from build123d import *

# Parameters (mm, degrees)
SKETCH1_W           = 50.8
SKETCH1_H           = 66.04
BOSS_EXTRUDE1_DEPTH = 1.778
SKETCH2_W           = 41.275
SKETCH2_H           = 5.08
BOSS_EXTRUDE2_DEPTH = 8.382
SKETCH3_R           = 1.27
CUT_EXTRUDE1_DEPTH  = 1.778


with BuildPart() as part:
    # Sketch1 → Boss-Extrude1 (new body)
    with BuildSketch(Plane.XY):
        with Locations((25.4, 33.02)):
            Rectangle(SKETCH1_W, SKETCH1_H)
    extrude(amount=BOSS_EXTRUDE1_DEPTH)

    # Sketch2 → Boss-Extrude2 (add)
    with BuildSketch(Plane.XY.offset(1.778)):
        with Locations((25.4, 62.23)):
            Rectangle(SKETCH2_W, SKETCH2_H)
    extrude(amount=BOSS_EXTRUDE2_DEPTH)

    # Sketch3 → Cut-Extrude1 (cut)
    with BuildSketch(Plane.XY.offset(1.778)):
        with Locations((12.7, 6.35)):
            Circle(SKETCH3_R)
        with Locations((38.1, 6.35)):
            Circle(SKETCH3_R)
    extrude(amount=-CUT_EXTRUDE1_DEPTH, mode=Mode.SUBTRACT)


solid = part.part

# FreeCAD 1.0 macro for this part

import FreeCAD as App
import Part
import Sketcher

V = App.Vector
Q = App.Units.Quantity


def add_polygon(sketch, points):
    """Adds a closed chain of lines whose ends are joined by coincident constraints."""
    first, n = sketch.GeometryCount, len(points)
    for a, b in zip(points, points[1:] + points[:1]):
        sketch.addGeometry(Part.LineSegment(App.Vector(*a, 0), App.Vector(*b, 0)), False)
    for i in range(n):
        sketch.addConstraint(Sketcher.Constraint("Coincident", first + i, 2, first + (i + 1) % n, 1))

doc = App.newDocument("Part")
body = doc.addObject("PartDesign::Body", "Body")

# Sketch on XY plane
sketch1 = doc.addObject("Sketcher::SketchObject", "Sketch")
body.addObject(sketch1)
sketch1.AttachmentSupport = (doc.XY_Plane, [""])
sketch1.MapMode = "FlatFace"
add_polygon(sketch1, [(0, 66), (0, 0), (51, 0), (51, 66)])  # lines 0-3
sketch1.addConstraint([
    Sketcher.Constraint("Vertical", 0),
    Sketcher.Constraint("Horizontal", 1),
    Sketcher.Constraint("Vertical", 2),
    Sketcher.Constraint("Horizontal", 3),
    Sketcher.Constraint("Coincident", 0, 2, -1, 1),
    Sketcher.Constraint("DistanceX", 1, 1, 1, 2, Q("2 in")),
    Sketcher.Constraint("DistanceY", 0, 2, 0, 1, Q("2.6 in")),
])
pad1 = doc.addObject("PartDesign::Pad", "Pad")
body.addObject(pad1)
pad1.Profile = sketch1
pad1.Length = Q("0.07 in")

# Sketch on XY plane
sketch2 = doc.addObject("Sketcher::SketchObject", "Sketch001")
body.addObject(sketch2)
sketch2.AttachmentSupport = (doc.XY_Plane, [""])
sketch2.MapMode = "FlatFace"
sketch2.AttachmentOffset = App.Placement(V(0, 0, 0.07 * 25.4), App.Rotation())
add_polygon(sketch2, [(5, 65), (5, 60), (46, 60), (46, 65)])  # lines 0-3
sketch2.addConstraint([
    Sketcher.Constraint("Vertical", 0),
    Sketcher.Constraint("Horizontal", 1),
    Sketcher.Constraint("Vertical", 2),
    Sketcher.Constraint("Horizontal", 3),
    Sketcher.Constraint("DistanceY", 0, 2, 0, 1, Q("0.2 in")),
    Sketcher.Constraint("DistanceX", 1, 1, 1, 2, Q("1.625 in")),
    Sketcher.Constraint("DistanceY", -1, 1, 0, 2, Q("2.35 in")),
    Sketcher.Constraint("DistanceX", -1, 1, 0, 2, Q("0.1875 in")),
])
pad2 = doc.addObject("PartDesign::Pad", "Pad001")
body.addObject(pad2)
pad2.Profile = sketch2
pad2.Length = Q("0.33 in")

# Sketch on XY plane
sketch3 = doc.addObject("Sketcher::SketchObject", "Sketch002")
body.addObject(sketch3)
sketch3.AttachmentSupport = (doc.XY_Plane, [""])
sketch3.MapMode = "FlatFace"
sketch3.AttachmentOffset = App.Placement(V(0, 0, 0.07 * 25.4), App.Rotation())
sketch3.addGeometry([
    Part.Circle(V(12.7, 6.3, 0), V(0, 0, 1), 1.3),
    Part.Circle(V(38.1, 6.3, 0), V(0, 0, 1), 1.3),
], False)
sketch3.addConstraint([
    Sketcher.Constraint("Equal", 0, 1),
    Sketcher.Constraint("Horizontal", 0, 3, 1, 3),
    Sketcher.Constraint("Diameter", 0, Q("0.1 in")),
    Sketcher.Constraint("DistanceX", 0, 3, 1, 3, Q("1 in")),
    Sketcher.Constraint("DistanceX", -1, 1, 0, 3, Q("0.5 in")),
    Sketcher.Constraint("DistanceY", -1, 1, 0, 3, Q("0.25 in")),
])
pocket1 = doc.addObject("PartDesign::Pocket", "Pocket")
body.addObject(pocket1)
pocket1.Profile = sketch3
pocket1.Length = Q("0.07 in")

doc.recompute()
